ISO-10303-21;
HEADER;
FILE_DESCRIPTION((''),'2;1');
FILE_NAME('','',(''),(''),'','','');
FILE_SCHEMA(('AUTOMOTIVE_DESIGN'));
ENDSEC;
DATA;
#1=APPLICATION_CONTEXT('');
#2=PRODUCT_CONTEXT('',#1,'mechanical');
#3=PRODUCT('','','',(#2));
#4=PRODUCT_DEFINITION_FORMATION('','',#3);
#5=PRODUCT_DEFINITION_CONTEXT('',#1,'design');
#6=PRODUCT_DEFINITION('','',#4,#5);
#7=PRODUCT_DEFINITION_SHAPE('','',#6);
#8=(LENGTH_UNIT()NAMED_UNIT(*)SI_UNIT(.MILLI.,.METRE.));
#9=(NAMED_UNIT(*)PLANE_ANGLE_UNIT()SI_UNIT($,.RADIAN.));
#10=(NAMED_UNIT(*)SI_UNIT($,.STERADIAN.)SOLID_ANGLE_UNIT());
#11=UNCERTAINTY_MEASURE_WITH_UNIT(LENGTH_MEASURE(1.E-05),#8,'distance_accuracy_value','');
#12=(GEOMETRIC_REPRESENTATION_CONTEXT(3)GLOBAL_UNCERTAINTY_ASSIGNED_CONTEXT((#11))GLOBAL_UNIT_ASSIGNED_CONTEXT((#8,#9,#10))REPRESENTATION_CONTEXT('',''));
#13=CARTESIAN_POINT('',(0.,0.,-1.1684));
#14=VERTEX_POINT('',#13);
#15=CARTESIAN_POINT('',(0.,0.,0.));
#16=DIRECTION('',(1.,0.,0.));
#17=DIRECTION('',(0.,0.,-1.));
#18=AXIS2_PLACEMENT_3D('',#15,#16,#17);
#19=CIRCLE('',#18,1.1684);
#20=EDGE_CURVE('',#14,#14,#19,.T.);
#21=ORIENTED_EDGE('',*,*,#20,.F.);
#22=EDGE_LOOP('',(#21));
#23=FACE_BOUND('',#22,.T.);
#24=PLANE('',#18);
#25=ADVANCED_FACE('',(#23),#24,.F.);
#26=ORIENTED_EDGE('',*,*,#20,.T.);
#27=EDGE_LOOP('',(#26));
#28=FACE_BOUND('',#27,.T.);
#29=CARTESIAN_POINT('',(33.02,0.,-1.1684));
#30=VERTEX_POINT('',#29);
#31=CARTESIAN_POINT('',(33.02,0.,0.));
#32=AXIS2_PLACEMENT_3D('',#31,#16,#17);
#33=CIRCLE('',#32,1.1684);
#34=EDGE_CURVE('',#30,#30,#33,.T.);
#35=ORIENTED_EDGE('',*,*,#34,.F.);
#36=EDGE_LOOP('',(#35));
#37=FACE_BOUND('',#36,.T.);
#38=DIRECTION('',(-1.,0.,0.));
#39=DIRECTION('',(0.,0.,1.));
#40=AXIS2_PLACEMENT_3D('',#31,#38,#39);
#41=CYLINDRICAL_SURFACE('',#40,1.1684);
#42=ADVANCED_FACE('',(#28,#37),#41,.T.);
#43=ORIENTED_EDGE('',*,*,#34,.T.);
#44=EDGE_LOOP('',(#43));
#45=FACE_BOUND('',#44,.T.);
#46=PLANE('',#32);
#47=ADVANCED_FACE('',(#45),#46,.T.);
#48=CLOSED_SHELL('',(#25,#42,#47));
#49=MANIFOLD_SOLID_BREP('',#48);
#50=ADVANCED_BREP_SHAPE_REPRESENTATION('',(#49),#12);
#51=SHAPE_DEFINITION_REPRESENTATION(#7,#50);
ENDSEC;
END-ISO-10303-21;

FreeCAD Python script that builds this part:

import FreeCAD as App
import Part
import Sketcher
Q = App.Units.Quantity

doc = App.newDocument("Part")
body = doc.addObject("PartDesign::Body", "Body")

sketch1 = doc.addObject("Sketcher::SketchObject", "Sketch")
body.addObject(sketch1)
sketch1.AttachmentSupport = (doc.YZ_Plane, [""])
sketch1.MapMode = "FlatFace"
sketch1.addGeometry(Part.Circle(App.Vector(0, 0, 0), App.Vector(0, 0, 1), 1.2), False)
sketch1.addConstraint(Sketcher.Constraint("Coincident", 0, 3, -1, 1))
sketch1.addConstraint(Sketcher.Constraint("Diameter", 0, Q("0.092 in")))
pad1 = doc.addObject("PartDesign::Pad", "Pad")
body.addObject(pad1)
pad1.Profile = sketch1
pad1.Length = Q("1.3 in")

doc.recompute()
